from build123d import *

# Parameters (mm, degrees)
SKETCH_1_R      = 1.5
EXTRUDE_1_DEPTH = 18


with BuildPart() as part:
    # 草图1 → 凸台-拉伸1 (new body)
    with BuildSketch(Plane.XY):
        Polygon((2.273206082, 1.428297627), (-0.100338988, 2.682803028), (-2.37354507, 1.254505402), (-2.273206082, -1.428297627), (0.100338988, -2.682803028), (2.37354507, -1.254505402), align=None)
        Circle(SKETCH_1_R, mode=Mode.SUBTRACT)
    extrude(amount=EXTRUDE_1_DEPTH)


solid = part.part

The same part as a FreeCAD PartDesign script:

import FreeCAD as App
import Part
import Sketcher
from FreeCAD import Vector
Q = App.Units.Quantity

doc = App.newDocument("Part")
body = doc.addObject("PartDesign::Body", "Body")

sketch1 = doc.addObject("Sketcher::SketchObject", "Sketch")
body.addObject(sketch1)
sketch1.AttachmentSupport = (doc.XY_Plane, [""])
sketch1.MapMode = "FlatFace"
sketch1.addGeometry([
    Part.LineSegment(Vector(2.3, 1.4, 0), Vector(-0.1, 2.7, 0)),
    Part.LineSegment(Vector(-0.1, 2.7, 0), Vector(-2.4, 1.3, 0)),
    Part.LineSegment(Vector(-2.4, 1.3, 0), Vector(-2.3, -1.4, 0)),
    Part.LineSegment(Vector(-2.3, -1.4, 0), Vector(0.1, -2.7, 0)),
    Part.LineSegment(Vector(0.1, -2.7, 0), Vector(2.4, -1.3, 0)),
    Part.LineSegment(Vector(2.4, -1.3, 0), Vector(2.3, 1.4, 0)),
    Part.Circle(Vector(0, 0, 0), Vector(0, 0, 1), 1.5),
], False)
sketch1.addConstraint([
    Sketcher.Constraint("Coincident", 0, 2, 1, 1),
    Sketcher.Constraint("Coincident", 1, 2, 2, 1),
    Sketcher.Constraint("Coincident", 2, 2, 3, 1),
    Sketcher.Constraint("Coincident", 3, 2, 4, 1),
    Sketcher.Constraint("Coincident", 4, 2, 5, 1),
    Sketcher.Constraint("Coincident", 5, 2, 0, 1),
    Sketcher.Constraint("Coincident", 6, 3, -1, 1),
    Sketcher.Constraint("Symmetric", 0, 2, 3, 2, -1, 1),
    Sketcher.Constraint("Symmetric", 1, 2, 4, 2, -1, 1),
    Sketcher.Constraint("Symmetric", 2, 2, 5, 2, -1, 1),
    Sketcher.Constraint("Equal", 0, 1),
    Sketcher.Constraint("Equal", 1, 2),
    Sketcher.Constraint("Diameter", 6, Q("3 mm")),
    Sketcher.Constraint("DistanceY", 2, 2, 0, 2, Q("4.111101 mm")),
    Sketcher.Constraint("Distance", 0, Q("2.684679 mm")),
    Sketcher.Constraint("DistanceX", 0, 2, -1, 1, Q("0.100339 mm")),
    Sketcher.Constraint("DistanceX", 1, 2, 2, 2, Q("0.100339 mm")),
])
pad1 = doc.addObject("PartDesign::Pad", "Pad")
body.addObject(pad1)
pad1.Profile = sketch1
pad1.Length = 18

doc.recompute()
